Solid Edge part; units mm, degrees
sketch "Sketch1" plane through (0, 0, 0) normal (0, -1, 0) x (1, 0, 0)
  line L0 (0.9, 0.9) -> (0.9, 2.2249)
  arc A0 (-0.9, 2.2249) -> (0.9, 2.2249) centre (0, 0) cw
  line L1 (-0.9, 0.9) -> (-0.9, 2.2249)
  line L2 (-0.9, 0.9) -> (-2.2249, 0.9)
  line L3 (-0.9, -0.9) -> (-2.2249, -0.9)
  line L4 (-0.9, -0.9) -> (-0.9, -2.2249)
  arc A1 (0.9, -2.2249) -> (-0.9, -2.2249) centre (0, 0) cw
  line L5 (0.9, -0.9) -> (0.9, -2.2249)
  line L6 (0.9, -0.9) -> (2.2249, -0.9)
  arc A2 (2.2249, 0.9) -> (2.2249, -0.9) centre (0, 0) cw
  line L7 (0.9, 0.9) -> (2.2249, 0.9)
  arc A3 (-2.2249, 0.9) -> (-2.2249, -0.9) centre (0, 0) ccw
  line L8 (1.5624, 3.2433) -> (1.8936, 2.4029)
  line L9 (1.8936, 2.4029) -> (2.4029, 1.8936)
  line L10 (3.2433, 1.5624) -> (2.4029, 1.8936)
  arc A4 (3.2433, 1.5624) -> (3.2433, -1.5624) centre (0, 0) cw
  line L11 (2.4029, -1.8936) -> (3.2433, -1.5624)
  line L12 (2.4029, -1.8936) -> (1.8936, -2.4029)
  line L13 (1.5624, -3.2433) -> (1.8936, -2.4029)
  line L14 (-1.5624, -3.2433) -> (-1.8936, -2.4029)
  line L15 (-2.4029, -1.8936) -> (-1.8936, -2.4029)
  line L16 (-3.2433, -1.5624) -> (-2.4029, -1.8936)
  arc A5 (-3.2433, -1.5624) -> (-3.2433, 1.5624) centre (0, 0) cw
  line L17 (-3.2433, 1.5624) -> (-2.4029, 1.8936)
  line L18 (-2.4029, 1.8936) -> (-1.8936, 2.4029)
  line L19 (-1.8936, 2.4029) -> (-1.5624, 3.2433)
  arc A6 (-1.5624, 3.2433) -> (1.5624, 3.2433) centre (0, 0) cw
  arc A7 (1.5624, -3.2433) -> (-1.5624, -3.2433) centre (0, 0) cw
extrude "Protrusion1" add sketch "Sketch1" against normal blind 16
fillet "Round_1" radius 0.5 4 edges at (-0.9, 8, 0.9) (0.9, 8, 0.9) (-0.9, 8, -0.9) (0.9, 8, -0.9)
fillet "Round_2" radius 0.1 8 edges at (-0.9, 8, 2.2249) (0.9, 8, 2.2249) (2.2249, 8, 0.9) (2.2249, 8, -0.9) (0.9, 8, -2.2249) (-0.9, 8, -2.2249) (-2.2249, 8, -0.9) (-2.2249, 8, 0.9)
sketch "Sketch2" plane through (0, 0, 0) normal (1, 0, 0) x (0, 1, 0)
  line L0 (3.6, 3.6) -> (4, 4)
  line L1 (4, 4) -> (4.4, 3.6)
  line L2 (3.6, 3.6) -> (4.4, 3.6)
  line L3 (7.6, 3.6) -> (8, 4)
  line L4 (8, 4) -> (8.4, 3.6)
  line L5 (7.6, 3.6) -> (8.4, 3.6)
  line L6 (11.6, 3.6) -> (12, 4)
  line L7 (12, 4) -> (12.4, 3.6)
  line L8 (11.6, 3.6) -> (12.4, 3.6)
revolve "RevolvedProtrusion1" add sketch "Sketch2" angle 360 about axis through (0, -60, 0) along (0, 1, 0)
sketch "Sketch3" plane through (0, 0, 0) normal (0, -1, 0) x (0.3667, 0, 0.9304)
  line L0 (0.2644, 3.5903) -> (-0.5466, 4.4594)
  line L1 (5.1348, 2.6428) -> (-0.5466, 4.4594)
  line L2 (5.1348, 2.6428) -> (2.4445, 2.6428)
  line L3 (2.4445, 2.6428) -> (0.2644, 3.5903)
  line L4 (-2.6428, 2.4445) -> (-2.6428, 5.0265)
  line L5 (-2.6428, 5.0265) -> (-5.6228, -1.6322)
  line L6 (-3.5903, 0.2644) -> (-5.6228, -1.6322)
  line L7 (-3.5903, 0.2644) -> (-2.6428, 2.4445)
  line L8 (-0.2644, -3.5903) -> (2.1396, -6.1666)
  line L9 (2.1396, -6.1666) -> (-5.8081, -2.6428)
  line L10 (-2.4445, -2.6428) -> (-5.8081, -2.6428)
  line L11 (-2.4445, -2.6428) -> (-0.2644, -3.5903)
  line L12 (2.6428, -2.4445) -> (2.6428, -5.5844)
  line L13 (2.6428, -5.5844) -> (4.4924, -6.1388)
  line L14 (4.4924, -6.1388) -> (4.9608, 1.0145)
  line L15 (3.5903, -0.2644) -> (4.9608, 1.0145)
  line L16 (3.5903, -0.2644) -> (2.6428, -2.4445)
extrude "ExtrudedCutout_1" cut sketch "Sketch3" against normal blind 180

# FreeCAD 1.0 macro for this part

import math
import FreeCAD as App
import Part
import Sketcher

V = App.Vector
Q = App.Units.Quantity


def edges_at(feature, points):
    """Names of the edges that pass closest to the given points."""
    edges = feature.Shape.Edges
    near = lambda p: min(range(len(edges)), key=lambda i: edges[i].distToShape(Part.Vertex(*p))[0])
    return sorted({f"Edge{near(p) + 1}" for p in points})


def add_polygon(sketch, points):
    """Adds a closed chain of lines whose ends are joined by coincident constraints."""
    first, n = sketch.GeometryCount, len(points)
    for a, b in zip(points, points[1:] + points[:1]):
        sketch.addGeometry(Part.LineSegment(App.Vector(*a, 0), App.Vector(*b, 0)), False)
    for i in range(n):
        sketch.addConstraint(Sketcher.Constraint("Coincident", first + i, 2, first + (i + 1) % n, 1))

doc = App.newDocument("Part")
params = doc.addObject("Spreadsheet::Sheet", "Params")
for row, (alias, value) in enumerate([
    ("sketch1_radius", "3.6 mm"),
    ("sketch1_radius2", "2.4 mm"),
    ("pad1_length", "16 mm"),
    ("fillet_radius", "0.5 mm"),
    ("fillet2_radius", "0.1 mm"),
    ("sketch2_width", "0.8 mm"),
    ("revolution_angle", "360 deg"),
    ("sketch3_length", "2.78 mm"),
    ("sketch3_length2", "3.14 mm"),
    ("pocket1_length", "180 mm"),
], start=1):
    params.set(f"A{row}", alias)
    params.set(f"B{row}", "=" + value)
    params.setAlias(f"B{row}", alias)

body = doc.addObject("PartDesign::Body", "Body")

# Sketch on XZ plane
sketch1 = body.newObject("Sketcher::SketchObject", "Sketch")
sketch1.AttachmentSupport = (doc.getObject("XZ_Plane"), [""])
sketch1.MapMode = "FlatFace"
sketch1.addGeometry([
    Part.LineSegment(V(1.9, 2.4, 0), V(1.6, 3.2, 0)),  # 0
    Part.ArcOfCircle(Part.Circle(V(0, 0, 0), V(0, 0, 1), 3.6), math.radians(64), math.radians(116)),  # 1
    Part.LineSegment(V(-1.6, 3.2, 0), V(-1.9, 2.4, 0)),  # 2
    Part.LineSegment(V(-1.9, 2.4, 0), V(-2.4, 1.9, 0)),  # 3
    Part.LineSegment(V(-2.4, 1.9, 0), V(-3.2, 1.6, 0)),  # 4
    Part.ArcOfCircle(Part.Circle(V(0, 0, 0), V(0, 0, 1), 3.6), math.radians(154), math.radians(206)),  # 5
    Part.LineSegment(V(-3.2, -1.6, 0), V(-2.4, -1.9, 0)),  # 6
    Part.LineSegment(V(-2.4, -1.9, 0), V(-1.9, -2.4, 0)),  # 7
    Part.LineSegment(V(-1.9, -2.4, 0), V(-1.6, -3.2, 0)),  # 8
    Part.ArcOfCircle(Part.Circle(V(0, 0, 0), V(0, 0, 1), 3.6), math.radians(-116), math.radians(-64)),  # 9
    Part.LineSegment(V(1.6, -3.2, 0), V(1.9, -2.4, 0)),  # 10
    Part.LineSegment(V(1.9, -2.4, 0), V(2.4, -1.9, 0)),  # 11
    Part.LineSegment(V(2.4, -1.9, 0), V(3.2, -1.6, 0)),  # 12
    Part.ArcOfCircle(Part.Circle(V(0, 0, 0), V(0, 0, 1), 3.6), math.radians(-26), math.radians(26)),  # 13
    Part.LineSegment(V(3.2, 1.6, 0), V(2.4, 1.9, 0)),  # 14
    Part.LineSegment(V(2.4, 1.9, 0), V(1.9, 2.4, 0)),  # 15
    Part.LineSegment(V(0.9, 2.2, 0), V(0.9, 0.9, 0)),  # 16
    Part.LineSegment(V(0.9, 0.9, 0), V(2.2, 0.9, 0)),  # 17
    Part.ArcOfCircle(Part.Circle(V(0, 0, 0), V(0, 0, 1), 2.4), math.radians(-22), math.radians(22)),  # 18
    Part.LineSegment(V(2.2, -0.9, 0), V(0.9, -0.9, 0)),  # 19
    Part.LineSegment(V(0.9, -0.9, 0), V(0.9, -2.2, 0)),  # 20
    Part.ArcOfCircle(Part.Circle(V(0, 0, 0), V(0, 0, 1), 2.4), math.radians(-112), math.radians(-68)),  # 21
    Part.LineSegment(V(-0.9, -2.2, 0), V(-0.9, -0.9, 0)),  # 22
    Part.LineSegment(V(-0.9, -0.9, 0), V(-2.2, -0.9, 0)),  # 23
    Part.ArcOfCircle(Part.Circle(V(0, 0, 0), V(0, 0, 1), 2.4), math.radians(158), math.radians(202)),  # 24
    Part.LineSegment(V(-2.2, 0.9, 0), V(-0.9, 0.9, 0)),  # 25
    Part.LineSegment(V(-0.9, 0.9, 0), V(-0.9, 2.2, 0)),  # 26
    Part.ArcOfCircle(Part.Circle(V(0, 0, 0), V(0, 0, 1), 2.4), math.radians(68), math.radians(112)),  # 27
], False)
sketch1.addConstraint([
    Sketcher.Constraint("Coincident", 0, 2, 1, 1),
    Sketcher.Constraint("Coincident", 1, 2, 2, 1),
    Sketcher.Constraint("Coincident", 2, 2, 3, 1),
    Sketcher.Constraint("Coincident", 3, 2, 4, 1),
    Sketcher.Constraint("Coincident", 4, 2, 5, 1),
    Sketcher.Constraint("Coincident", 5, 2, 6, 1),
    Sketcher.Constraint("Coincident", 6, 2, 7, 1),
    Sketcher.Constraint("Coincident", 7, 2, 8, 1),
    Sketcher.Constraint("Coincident", 8, 2, 9, 1),
    Sketcher.Constraint("Coincident", 9, 2, 10, 1),
    Sketcher.Constraint("Coincident", 10, 2, 11, 1),
    Sketcher.Constraint("Coincident", 11, 2, 12, 1),
    Sketcher.Constraint("Coincident", 12, 2, 13, 1),
    Sketcher.Constraint("Coincident", 13, 2, 14, 1),
    Sketcher.Constraint("Coincident", 14, 2, 15, 1),
    Sketcher.Constraint("Coincident", 15, 2, 0, 1),
    Sketcher.Constraint("Coincident", 16, 2, 17, 1),
    Sketcher.Constraint("Coincident", 17, 2, 18, 2),
    Sketcher.Constraint("Coincident", 18, 1, 19, 1),
    Sketcher.Constraint("Coincident", 19, 2, 20, 1),
    Sketcher.Constraint("Coincident", 20, 2, 21, 2),
    Sketcher.Constraint("Coincident", 21, 1, 22, 1),
    Sketcher.Constraint("Coincident", 22, 2, 23, 1),
    Sketcher.Constraint("Coincident", 23, 2, 24, 2),
    Sketcher.Constraint("Coincident", 24, 1, 25, 1),
    Sketcher.Constraint("Coincident", 25, 2, 26, 1),
    Sketcher.Constraint("Coincident", 26, 2, 27, 2),
    Sketcher.Constraint("Coincident", 27, 1, 16, 1),
    Sketcher.Constraint("Vertical", 16),
    Sketcher.Constraint("Horizontal", 17),
    Sketcher.Constraint("Horizontal", 19),
    Sketcher.Constraint("Vertical", 20),
    Sketcher.Constraint("Vertical", 22),
    Sketcher.Constraint("Horizontal", 23),
    Sketcher.Constraint("Horizontal", 25),
    Sketcher.Constraint("Vertical", 26),
    Sketcher.Constraint("Coincident", 1, 3, -1, 1),
    Sketcher.Constraint("Coincident", 5, 3, -1, 1),
    Sketcher.Constraint("Coincident", 9, 3, -1, 1),
    Sketcher.Constraint("Coincident", 13, 3, -1, 1),
    Sketcher.Constraint("Coincident", 18, 3, -1, 1),
    Sketcher.Constraint("Coincident", 21, 3, -1, 1),
    Sketcher.Constraint("Coincident", 24, 3, -1, 1),
    Sketcher.Constraint("Coincident", 27, 3, -1, 1),
    Sketcher.Constraint("Equal", 1, 5),
    Sketcher.Constraint("Equal", 5, 9),
    Sketcher.Constraint("Equal", 9, 13),
    Sketcher.Constraint("Equal", 18, 21),
    Sketcher.Constraint("Equal", 21, 24),
    Sketcher.Constraint("Equal", 24, 27),
    Sketcher.Constraint("Symmetric", 2, 2, 10, 2, -1, 1),
    Sketcher.Constraint("Symmetric", 3, 2, 11, 2, -1, 1),
    Sketcher.Constraint("Symmetric", 6, 2, 14, 2, -1, 1),
    Sketcher.Constraint("Symmetric", 7, 2, 15, 2, -1, 1),
    Sketcher.Constraint("Symmetric", 16, 2, 22, 2, -1, 1),
    Sketcher.Constraint("Symmetric", 19, 2, 25, 2, -1, 1),
    Sketcher.Constraint("Symmetric", 7, 2, 10, 2, -2),
    Sketcher.Constraint("Symmetric", 6, 2, 11, 2, -2),
    Sketcher.Constraint("Symmetric", 19, 2, 22, 2, -2),
    Sketcher.Constraint("Perpendicular", 0, 4),
    Sketcher.Constraint("Perpendicular", 2, 6),
    Sketcher.Constraint("Perpendicular", 3, 7),
    Sketcher.Constraint("Perpendicular", 4, 8),
    Sketcher.Constraint("Perpendicular", 6, 10),
    Sketcher.Constraint("Perpendicular", 8, 12),
    Sketcher.Constraint("Perpendicular", 10, 14),
    Sketcher.Constraint("Horizontal", 0, 2, 1, 2),
    Sketcher.Constraint("Equal", 25, 16),
    Sketcher.Constraint("Equal", 2, 4),
    Sketcher.Constraint("Radius", 1, 3.6),
    Sketcher.Constraint("Radius", 18, 2.4),
    Sketcher.Constraint("DistanceX", -1, 1, 16, 2, 0.9),
    Sketcher.Constraint("Angle", 0, Q("111.5093 deg")),
    Sketcher.Constraint("DistanceY", -1, 1, 2, 2, 2.403),
    Sketcher.Constraint("DistanceX", 4, 2, 1, 2, 1.681),
])
sketch1.setExpression("Constraints[69]", "Params.sketch1_radius")
sketch1.setExpression("Constraints[70]", "Params.sketch1_radius2")
pad1 = body.newObject("PartDesign::Pad", "Pad")
pad1.Profile = sketch1
pad1.setExpression("Length", "Params.pad1_length")
pad1.Reversed = True
doc.recompute()

fillet = body.newObject("PartDesign::Fillet", "Fillet")
fillet.Base = (pad1, edges_at(pad1, [
    (-0.9, 8, 0.9),
    (0.9, 8, 0.9),
    (-0.9, 8, -0.9),
    (0.9, 8, -0.9),
]))
fillet.setExpression("Radius", "Params.fillet_radius")
doc.recompute()

fillet2 = body.newObject("PartDesign::Fillet", "Fillet001")
fillet2.Base = (fillet, edges_at(fillet, [
    (-0.9, 8, 2.225),
    (0.9, 8, 2.225),
    (2.225, 8, 0.9),
    (2.225, 8, -0.9),
    (0.9, 8, -2.225),
    (-0.9, 8, -2.225),
    (-2.225, 8, -0.9),
    (-2.225, 8, 0.9),
]))
fillet2.setExpression("Radius", "Params.fillet2_radius")

# Sketch on YZ plane
sketch2 = body.newObject("Sketcher::SketchObject", "Sketch001")
sketch2.AttachmentSupport = (doc.getObject("YZ_Plane"), [""])
sketch2.MapMode = "FlatFace"
add_polygon(sketch2, [(4, 4), (3.6, 3.6), (4.4, 3.6)])  # lines 0-2
add_polygon(sketch2, [(8, 4), (7.6, 3.6), (8.4, 3.6)])  # lines 3-5
add_polygon(sketch2, [(12, 4), (11.6, 3.6), (12.4, 3.6)])  # lines 6-8
sketch2.addConstraint([
    Sketcher.Constraint("Horizontal", 1),
    Sketcher.Constraint("Horizontal", 4),
    Sketcher.Constraint("Horizontal", 7),
    Sketcher.Constraint("Perpendicular", 0, 2),
    Sketcher.Constraint("Perpendicular", 2, 3),
    Sketcher.Constraint("Perpendicular", 3, 5),
    Sketcher.Constraint("Perpendicular", 5, 6),
    Sketcher.Constraint("Perpendicular", 6, 8),
    Sketcher.Constraint("Horizontal", 1, 2, 3, 2),
    Sketcher.Constraint("Horizontal", 2, 2, 5, 2),
    Sketcher.Constraint("Horizontal", 4, 2, 6, 2),
    Sketcher.Constraint("Horizontal", 5, 2, 8, 2),
    Sketcher.Constraint("Equal", 0, 2),
    Sketcher.Constraint("DistanceX", 1, 1, 1, 2, 0.8),
    Sketcher.Constraint("DistanceX", -1, 1, 2, 2, 4.0),
    Sketcher.Constraint("DistanceY", -1, 1, 2, 2, 4.0),
    Sketcher.Constraint("DistanceX", -1, 1, 5, 2, 8.0),
    Sketcher.Constraint("DistanceX", -1, 1, 8, 2, 12.0),
])
sketch2.setExpression("Constraints[22]", "Params.sketch2_width")
revolution = body.newObject("PartDesign::Revolution", "Revolution")
revolution.Profile = sketch2
revolution.ReferenceAxis = (sketch2, ["H_Axis"])
revolution.setExpression("Angle", "Params.revolution_angle")

# Sketch on XZ plane
sketch3 = body.newObject("Sketcher::SketchObject", "Sketch002")
sketch3.AttachmentSupport = (doc.getObject("XZ_Plane"), [""])
sketch3.MapMode = "FlatFace"
add_polygon(sketch3, [(-4.3, 1.1), (-3.2, 1.6), (-1.6, 3.2), (-0.6, 5.7)])  # lines 0-3
add_polygon(sketch3, [(-1.6, -3.2), (-3.2, -1.6), (-5.6, -0.6), (-0.5, -5.8)])  # lines 4-7
add_polygon(sketch3, [(6.5, -0.3), (3.2, -1.6), (1.6, -3.2), (0.3, -6.4)])  # lines 8-11
add_polygon(sketch3, [(1.6, 3.2), (3.2, 1.6), (6.2, 0.4), (7.4, 1.9), (0.9, 5)])  # lines 12-16
sketch3.addConstraint([
    Sketcher.Constraint("Symmetric", 0, 2, 8, 2, -1, 1),
    Sketcher.Constraint("Symmetric", 1, 2, 9, 2, -1, 1),
    Sketcher.Constraint("Symmetric", 4, 2, 12, 2, -1, 1),
    Sketcher.Constraint("Symmetric", 7, 2, 16, 2, -1, 1),
    Sketcher.Constraint("Symmetric", 4, 2, 8, 2, -2),
    Sketcher.Constraint("Symmetric", 7, 2, 9, 2, -2),
    Sketcher.Constraint("Perpendicular", 1, 4),
    Sketcher.Constraint("Perpendicular", 2, 5),
    Sketcher.Constraint("Perpendicular", 0, 7),
    Sketcher.Constraint("Perpendicular", 7, 8),
    Sketcher.Constraint("Perpendicular", 5, 10),
    Sketcher.Constraint("Perpendicular", 10, 13),
    Sketcher.Constraint("Perpendicular", 8, 16),
    Sketcher.Constraint("Angle", 2, Q("68.489 deg")),
    Sketcher.Constraint("Angle", 6, Q("-45.6211 deg")),
    Sketcher.Constraint("Angle", 16, Q("-68.491 deg")),
    Sketcher.Constraint("DistanceX", 4, 2, 6, 2, 2.7),
    Sketcher.Constraint("Distance", 7, 2.78),
    Sketcher.Constraint("Distance", 13, 3.14),
    Sketcher.Constraint("DistanceY", 7, 2, 3, 2, 4.37),
    Sketcher.Constraint("Distance", 14, 1.931),
    Sketcher.Constraint("DistanceX", 2, 2, -1, 1, 0.576),
    Sketcher.Constraint("DistanceX", -1, 1, 10, 2, 0.329),
    Sketcher.Constraint("DistanceY", -1, 1, 13, 2, 0.411),
    Sketcher.Constraint("DistanceY", 1, 2, 2, 2, 2.503),
    Sketcher.Constraint("DistanceX", 7, 2, 11, 2, 8.084),
    Sketcher.Constraint("DistanceX", 13, 2, 14, 2, 1.194),
    Sketcher.Constraint("DistanceX", 2, 2, 15, 2, 1.451),
])
sketch3.setExpression("Constraints[34]", "Params.sketch3_length")
sketch3.setExpression("Constraints[35]", "Params.sketch3_length2")
pocket1 = body.newObject("PartDesign::Pocket", "Pocket")
pocket1.Profile = sketch3
pocket1.setExpression("Length", "Params.pocket1_length")

doc.recompute()
